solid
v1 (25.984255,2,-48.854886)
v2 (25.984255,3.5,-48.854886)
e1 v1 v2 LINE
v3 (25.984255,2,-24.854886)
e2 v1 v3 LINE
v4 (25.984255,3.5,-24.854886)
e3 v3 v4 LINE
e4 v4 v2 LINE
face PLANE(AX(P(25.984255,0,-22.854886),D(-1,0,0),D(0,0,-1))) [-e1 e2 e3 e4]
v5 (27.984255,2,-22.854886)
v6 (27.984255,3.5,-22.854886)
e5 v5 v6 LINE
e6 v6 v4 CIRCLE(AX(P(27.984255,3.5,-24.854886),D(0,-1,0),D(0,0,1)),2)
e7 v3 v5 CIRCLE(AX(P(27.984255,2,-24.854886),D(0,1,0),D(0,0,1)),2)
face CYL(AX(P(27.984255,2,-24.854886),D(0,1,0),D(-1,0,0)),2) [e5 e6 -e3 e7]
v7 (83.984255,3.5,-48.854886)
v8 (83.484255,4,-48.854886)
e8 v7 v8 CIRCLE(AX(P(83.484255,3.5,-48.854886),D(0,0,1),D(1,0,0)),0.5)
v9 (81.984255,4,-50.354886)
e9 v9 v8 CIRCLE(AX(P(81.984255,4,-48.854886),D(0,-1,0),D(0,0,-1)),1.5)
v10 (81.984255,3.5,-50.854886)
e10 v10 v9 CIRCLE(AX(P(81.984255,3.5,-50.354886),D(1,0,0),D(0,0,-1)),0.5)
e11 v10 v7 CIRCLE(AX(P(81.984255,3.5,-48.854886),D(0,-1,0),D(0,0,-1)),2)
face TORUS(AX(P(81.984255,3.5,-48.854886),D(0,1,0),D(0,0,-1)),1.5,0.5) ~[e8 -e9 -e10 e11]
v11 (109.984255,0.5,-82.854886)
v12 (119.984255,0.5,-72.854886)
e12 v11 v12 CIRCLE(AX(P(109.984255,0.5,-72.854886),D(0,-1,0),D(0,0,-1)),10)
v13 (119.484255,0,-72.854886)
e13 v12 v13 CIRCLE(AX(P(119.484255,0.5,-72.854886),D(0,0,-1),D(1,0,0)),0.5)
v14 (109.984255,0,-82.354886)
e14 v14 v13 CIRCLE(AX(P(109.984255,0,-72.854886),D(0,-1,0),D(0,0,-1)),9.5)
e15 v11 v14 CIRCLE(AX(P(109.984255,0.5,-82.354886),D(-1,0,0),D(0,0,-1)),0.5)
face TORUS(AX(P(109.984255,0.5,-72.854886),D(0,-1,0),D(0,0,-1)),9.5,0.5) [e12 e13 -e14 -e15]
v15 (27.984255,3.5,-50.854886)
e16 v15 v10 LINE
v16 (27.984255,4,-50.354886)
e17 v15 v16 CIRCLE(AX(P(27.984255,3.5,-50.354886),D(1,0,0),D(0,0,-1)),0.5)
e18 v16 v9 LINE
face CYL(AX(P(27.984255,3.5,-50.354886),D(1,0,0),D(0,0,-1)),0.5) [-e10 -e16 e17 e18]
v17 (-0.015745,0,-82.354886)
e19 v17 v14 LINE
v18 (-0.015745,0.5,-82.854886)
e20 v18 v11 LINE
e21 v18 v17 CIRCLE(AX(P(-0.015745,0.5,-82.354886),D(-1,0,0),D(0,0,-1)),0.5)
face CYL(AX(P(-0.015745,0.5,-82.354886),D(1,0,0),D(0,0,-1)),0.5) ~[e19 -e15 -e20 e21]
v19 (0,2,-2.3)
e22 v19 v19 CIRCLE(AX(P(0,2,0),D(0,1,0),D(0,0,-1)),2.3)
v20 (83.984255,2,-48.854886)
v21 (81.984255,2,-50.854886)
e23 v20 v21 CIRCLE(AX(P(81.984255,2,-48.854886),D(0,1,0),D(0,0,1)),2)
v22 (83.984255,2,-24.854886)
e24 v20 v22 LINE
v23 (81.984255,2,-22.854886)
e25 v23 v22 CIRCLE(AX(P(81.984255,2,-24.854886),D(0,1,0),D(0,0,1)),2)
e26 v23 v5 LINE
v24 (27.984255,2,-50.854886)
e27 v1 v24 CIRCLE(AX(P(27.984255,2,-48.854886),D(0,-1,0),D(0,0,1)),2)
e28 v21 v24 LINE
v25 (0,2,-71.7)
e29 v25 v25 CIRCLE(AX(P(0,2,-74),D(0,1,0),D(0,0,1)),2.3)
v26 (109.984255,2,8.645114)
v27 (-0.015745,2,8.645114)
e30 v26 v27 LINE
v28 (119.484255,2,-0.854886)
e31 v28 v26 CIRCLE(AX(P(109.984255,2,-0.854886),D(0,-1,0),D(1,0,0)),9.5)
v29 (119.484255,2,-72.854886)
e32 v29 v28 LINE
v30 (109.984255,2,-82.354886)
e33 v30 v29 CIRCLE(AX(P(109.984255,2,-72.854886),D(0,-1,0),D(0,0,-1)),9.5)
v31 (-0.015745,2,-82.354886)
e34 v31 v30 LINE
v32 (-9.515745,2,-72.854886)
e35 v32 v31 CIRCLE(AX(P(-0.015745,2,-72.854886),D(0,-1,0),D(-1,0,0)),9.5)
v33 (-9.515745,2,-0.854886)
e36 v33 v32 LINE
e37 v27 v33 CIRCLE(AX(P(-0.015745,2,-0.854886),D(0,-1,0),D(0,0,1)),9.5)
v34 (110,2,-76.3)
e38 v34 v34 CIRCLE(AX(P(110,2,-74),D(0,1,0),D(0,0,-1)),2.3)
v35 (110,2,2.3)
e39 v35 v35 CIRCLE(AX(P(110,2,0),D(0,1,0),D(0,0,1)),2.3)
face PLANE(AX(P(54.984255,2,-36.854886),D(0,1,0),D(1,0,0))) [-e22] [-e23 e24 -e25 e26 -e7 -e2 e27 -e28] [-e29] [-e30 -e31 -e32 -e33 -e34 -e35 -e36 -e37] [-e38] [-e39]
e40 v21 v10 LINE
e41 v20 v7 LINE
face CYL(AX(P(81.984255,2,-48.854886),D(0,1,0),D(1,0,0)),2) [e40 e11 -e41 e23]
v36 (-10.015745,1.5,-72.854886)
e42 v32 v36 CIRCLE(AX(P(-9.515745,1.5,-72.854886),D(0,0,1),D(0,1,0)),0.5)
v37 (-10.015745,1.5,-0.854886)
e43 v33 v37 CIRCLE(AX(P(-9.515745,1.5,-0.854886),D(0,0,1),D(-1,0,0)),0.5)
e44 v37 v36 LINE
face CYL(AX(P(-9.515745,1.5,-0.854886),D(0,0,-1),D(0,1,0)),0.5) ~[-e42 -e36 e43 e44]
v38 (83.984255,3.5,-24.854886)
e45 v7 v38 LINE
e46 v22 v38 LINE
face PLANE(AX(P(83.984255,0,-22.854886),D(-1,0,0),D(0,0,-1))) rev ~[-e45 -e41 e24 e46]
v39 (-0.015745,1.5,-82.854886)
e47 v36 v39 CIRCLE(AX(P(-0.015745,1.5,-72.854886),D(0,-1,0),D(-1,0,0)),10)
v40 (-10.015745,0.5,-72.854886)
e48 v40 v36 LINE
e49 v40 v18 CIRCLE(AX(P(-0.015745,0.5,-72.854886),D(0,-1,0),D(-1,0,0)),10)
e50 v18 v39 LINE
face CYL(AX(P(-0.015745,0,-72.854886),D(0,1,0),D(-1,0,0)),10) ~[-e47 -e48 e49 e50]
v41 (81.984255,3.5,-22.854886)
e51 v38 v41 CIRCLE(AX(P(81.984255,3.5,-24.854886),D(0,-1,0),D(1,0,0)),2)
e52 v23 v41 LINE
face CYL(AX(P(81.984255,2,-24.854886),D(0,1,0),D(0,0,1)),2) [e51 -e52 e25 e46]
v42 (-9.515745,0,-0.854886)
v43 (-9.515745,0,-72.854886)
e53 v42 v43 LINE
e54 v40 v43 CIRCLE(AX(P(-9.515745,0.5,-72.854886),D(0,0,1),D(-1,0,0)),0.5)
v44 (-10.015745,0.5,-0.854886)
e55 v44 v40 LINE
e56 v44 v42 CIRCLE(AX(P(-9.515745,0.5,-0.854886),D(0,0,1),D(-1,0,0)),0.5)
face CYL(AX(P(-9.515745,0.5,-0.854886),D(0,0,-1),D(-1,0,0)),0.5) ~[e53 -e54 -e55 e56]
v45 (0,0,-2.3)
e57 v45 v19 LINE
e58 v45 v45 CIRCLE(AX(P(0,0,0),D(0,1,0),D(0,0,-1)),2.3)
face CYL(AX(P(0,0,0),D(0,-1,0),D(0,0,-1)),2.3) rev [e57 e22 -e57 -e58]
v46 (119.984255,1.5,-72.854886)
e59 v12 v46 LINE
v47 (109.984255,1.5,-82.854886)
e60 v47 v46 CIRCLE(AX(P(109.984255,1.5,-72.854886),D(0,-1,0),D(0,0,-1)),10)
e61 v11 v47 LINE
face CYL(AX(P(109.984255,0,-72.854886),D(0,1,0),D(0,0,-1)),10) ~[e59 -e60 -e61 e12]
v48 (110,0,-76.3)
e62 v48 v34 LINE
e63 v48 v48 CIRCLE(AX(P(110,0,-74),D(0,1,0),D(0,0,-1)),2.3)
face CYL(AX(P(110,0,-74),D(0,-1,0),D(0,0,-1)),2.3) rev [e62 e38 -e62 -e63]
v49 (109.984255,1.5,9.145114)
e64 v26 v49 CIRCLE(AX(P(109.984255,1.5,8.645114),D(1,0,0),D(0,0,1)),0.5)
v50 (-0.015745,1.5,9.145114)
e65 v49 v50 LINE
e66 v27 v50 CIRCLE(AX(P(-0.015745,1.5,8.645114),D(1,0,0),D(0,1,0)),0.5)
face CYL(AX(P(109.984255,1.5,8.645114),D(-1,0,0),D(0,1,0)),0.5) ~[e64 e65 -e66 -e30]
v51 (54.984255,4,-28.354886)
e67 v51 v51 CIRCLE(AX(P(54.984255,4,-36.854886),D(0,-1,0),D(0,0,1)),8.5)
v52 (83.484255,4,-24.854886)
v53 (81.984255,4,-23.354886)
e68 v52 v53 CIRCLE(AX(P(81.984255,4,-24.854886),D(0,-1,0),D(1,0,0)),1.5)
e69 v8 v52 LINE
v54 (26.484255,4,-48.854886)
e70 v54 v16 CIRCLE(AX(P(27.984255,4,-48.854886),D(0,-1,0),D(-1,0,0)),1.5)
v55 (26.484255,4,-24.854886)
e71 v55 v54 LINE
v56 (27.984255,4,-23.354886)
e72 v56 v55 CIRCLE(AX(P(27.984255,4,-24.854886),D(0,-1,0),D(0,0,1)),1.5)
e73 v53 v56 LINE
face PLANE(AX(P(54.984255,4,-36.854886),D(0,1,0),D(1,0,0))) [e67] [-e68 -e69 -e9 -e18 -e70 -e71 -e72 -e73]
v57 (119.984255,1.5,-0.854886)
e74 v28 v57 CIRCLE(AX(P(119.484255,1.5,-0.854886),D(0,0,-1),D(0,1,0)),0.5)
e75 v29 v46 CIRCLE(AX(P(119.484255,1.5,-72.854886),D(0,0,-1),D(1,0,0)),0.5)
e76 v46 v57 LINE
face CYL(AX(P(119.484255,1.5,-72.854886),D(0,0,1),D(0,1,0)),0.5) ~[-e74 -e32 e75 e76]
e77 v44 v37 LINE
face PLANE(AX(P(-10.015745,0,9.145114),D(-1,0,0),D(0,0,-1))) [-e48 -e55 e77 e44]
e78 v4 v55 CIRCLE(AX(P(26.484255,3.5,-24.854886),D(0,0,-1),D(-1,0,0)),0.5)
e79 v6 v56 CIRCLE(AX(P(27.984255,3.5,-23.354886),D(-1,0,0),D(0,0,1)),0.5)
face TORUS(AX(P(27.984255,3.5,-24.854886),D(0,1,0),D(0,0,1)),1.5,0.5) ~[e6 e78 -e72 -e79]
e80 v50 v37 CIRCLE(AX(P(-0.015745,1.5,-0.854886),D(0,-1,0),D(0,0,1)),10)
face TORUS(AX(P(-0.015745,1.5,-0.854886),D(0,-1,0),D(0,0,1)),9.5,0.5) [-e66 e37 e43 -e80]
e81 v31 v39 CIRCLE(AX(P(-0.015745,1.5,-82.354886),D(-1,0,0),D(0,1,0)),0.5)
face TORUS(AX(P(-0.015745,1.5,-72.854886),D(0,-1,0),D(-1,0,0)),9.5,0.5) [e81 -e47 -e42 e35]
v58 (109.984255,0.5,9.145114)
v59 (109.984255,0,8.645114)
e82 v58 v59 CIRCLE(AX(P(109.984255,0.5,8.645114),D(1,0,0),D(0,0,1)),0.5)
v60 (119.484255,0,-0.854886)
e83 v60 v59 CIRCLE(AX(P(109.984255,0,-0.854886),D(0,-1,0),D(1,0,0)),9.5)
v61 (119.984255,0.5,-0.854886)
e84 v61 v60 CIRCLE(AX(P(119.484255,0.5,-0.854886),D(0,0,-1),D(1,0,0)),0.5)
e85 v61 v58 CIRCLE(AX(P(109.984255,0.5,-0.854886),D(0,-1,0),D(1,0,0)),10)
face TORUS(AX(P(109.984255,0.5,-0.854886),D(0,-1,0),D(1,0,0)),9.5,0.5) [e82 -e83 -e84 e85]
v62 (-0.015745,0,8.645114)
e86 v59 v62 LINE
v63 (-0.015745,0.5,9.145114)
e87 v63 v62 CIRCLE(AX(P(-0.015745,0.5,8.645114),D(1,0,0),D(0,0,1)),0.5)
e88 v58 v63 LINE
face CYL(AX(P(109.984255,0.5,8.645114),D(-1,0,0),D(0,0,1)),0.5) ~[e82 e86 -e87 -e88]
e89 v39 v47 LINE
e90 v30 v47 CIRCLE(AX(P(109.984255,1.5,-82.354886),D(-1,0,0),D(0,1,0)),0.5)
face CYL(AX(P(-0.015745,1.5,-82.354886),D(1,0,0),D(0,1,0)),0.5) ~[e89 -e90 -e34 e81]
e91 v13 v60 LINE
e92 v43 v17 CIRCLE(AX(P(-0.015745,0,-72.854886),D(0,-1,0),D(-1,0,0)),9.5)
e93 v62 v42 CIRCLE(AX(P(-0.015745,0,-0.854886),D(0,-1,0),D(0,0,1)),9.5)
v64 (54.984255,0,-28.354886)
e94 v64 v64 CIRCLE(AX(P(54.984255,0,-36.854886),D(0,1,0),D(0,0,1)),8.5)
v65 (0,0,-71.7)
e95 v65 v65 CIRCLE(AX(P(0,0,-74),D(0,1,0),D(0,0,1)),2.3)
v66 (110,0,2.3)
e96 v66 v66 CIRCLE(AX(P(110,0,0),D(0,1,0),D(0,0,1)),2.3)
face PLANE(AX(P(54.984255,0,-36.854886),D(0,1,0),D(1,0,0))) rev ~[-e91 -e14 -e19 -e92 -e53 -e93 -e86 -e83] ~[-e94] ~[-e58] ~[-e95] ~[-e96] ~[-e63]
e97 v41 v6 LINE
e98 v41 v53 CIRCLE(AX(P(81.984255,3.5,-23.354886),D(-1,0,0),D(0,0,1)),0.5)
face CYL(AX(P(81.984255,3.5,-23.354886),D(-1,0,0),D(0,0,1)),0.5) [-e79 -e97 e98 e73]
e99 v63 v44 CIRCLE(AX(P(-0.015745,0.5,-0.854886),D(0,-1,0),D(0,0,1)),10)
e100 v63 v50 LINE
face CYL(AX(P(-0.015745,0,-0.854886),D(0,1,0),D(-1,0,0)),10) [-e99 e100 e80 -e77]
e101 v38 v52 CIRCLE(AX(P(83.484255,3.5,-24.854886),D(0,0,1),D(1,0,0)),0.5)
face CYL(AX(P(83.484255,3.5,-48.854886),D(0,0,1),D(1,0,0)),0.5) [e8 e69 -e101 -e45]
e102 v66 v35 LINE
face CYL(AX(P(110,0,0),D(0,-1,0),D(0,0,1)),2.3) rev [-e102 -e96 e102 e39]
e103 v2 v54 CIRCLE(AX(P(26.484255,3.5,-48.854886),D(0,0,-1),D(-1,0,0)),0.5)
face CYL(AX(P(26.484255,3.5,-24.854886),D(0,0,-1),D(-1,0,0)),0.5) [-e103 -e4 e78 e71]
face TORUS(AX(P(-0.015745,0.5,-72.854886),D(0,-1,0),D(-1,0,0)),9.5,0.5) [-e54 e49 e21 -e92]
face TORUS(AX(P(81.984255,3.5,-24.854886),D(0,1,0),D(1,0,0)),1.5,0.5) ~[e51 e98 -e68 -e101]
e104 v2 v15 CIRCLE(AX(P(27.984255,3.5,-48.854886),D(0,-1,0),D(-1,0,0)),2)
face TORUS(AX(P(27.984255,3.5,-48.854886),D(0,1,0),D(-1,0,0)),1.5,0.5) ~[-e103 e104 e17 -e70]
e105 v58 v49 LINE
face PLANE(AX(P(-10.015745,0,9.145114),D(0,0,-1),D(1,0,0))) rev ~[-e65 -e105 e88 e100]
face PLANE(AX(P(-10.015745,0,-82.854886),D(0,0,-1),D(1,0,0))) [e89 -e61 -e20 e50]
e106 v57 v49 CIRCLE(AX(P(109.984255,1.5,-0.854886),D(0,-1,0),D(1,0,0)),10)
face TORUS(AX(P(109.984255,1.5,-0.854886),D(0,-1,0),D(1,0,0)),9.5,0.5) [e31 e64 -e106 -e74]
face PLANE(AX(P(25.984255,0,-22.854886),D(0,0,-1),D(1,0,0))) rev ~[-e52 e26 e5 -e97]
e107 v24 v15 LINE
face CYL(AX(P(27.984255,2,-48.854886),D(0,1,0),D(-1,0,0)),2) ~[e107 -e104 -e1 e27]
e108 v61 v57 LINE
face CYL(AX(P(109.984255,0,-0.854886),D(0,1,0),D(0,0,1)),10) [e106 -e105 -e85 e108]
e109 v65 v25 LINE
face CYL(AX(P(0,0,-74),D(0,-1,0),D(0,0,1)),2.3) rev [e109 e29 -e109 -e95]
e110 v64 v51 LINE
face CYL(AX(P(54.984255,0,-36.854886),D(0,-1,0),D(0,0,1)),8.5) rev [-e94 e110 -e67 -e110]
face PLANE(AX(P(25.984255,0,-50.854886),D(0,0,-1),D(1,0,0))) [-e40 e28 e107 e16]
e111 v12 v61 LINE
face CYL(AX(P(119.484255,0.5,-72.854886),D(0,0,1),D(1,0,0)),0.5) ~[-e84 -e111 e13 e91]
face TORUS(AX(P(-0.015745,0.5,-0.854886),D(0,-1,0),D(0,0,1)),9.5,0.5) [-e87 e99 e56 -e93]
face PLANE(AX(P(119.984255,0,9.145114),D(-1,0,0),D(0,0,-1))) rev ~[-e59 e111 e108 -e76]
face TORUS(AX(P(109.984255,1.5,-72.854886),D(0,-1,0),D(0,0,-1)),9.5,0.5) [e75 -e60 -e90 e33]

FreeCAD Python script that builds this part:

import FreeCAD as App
import Part
import Sketcher
from FreeCAD import Vector
Q = App.Units.Quantity


def edges_at(feature, points):
    """Names of the edges that pass closest to the given points."""
    edges = feature.Shape.Edges
    near = lambda p: min(range(len(edges)), key=lambda i: edges[i].distToShape(Part.Vertex(*p))[0])
    return sorted({f"Edge{near(p) + 1}" for p in points})

doc = App.newDocument("Part")
body = doc.addObject("PartDesign::Body", "Body")

# Sketch on XZ plane
sketch1 = body.newObject("Sketcher::SketchObject", "Sketch")
sketch1.AttachmentSupport = (doc.getObject("XZ_Plane"), [""])
sketch1.MapMode = "FlatFace"
sketch1.addGeometry(Part.LineSegment(Vector(-10.015745, -82.854886, 0), Vector(-10.015745, 9.145114, 0)), False)
sketch1.addGeometry(Part.LineSegment(Vector(-10.015745, 9.145114, 0), Vector(119.984255, 9.145114, 0)), False)
sketch1.addGeometry(Part.LineSegment(Vector(119.984255, 9.145114, 0), Vector(119.984255, -82.854886, 0)), False)
sketch1.addGeometry(Part.LineSegment(Vector(119.984255, -82.854886, 0), Vector(-10.015745, -82.854886, 0)), False)
sketch1.addGeometry(Part.Circle(Vector(0, 0, 0), Vector(0, 0, 1), 2.3), False)
sketch1.addGeometry(Part.Circle(Vector(110, 0, 0), Vector(0, 0, 1), 2.3), False)
sketch1.addGeometry(Part.Circle(Vector(0, -74, 0), Vector(0, 0, 1), 2.3), False)
sketch1.addGeometry(Part.Circle(Vector(110, -74, 0), Vector(0, 0, 1), 2.3), False)
sketch1.addConstraint(Sketcher.Constraint("Coincident", 0, 2, 1, 1))
sketch1.addConstraint(Sketcher.Constraint("Coincident", 1, 2, 2, 1))
sketch1.addConstraint(Sketcher.Constraint("Coincident", 2, 2, 3, 1))
sketch1.addConstraint(Sketcher.Constraint("Coincident", 3, 2, 0, 1))
sketch1.addConstraint(Sketcher.Constraint("Vertical", 0))
sketch1.addConstraint(Sketcher.Constraint("Horizontal", 1))
sketch1.addConstraint(Sketcher.Constraint("Vertical", 2))
sketch1.addConstraint(Sketcher.Constraint("Horizontal", 3))
sketch1.addConstraint(Sketcher.Constraint("Coincident", 4, 3, -1, 1))
sketch1.addConstraint(Sketcher.Constraint("Equal", 4, 5))
sketch1.addConstraint(Sketcher.Constraint("Equal", 5, 6))
sketch1.addConstraint(Sketcher.Constraint("Equal", 6, 7))
sketch1.addConstraint(Sketcher.Constraint("PointOnObject", 5, 3, -1))
sketch1.addConstraint(Sketcher.Constraint("PointOnObject", 6, 3, -2))
sketch1.addConstraint(Sketcher.Constraint("Horizontal", 6, 3, 7, 3))
sketch1.addConstraint(Sketcher.Constraint("Vertical", 5, 3, 7, 3))
sketch1.addConstraint(Sketcher.Constraint("Diameter", 4, Q("4.6 mm")))
sketch1.addConstraint(Sketcher.Constraint("DistanceX", 1, 1, 1, 2, Q("130 mm")))
sketch1.addConstraint(Sketcher.Constraint("DistanceY", 0, 1, 0, 2, Q("92 mm")))
sketch1.addConstraint(Sketcher.Constraint("DistanceX", -1, 1, 5, 3, Q("110 mm")))
sketch1.addConstraint(Sketcher.Constraint("DistanceY", 6, 3, -1, 1, Q("74 mm")))
sketch1.addConstraint(Sketcher.Constraint("DistanceX", 0, 2, -1, 1, Q("10.015745 mm")))
sketch1.addConstraint(Sketcher.Constraint("DistanceY", -1, 1, 0, 2, Q("9.145114 mm")))
pad1 = body.newObject("PartDesign::Pad", "Pad")
pad1.Profile = sketch1
pad1.Length = 2
pad1.Reversed = True

# Sketch on XZ plane
sketch2 = body.newObject("Sketcher::SketchObject", "Sketch001")
sketch2.AttachmentSupport = (doc.getObject("XZ_Plane"), [""])
sketch2.MapMode = "FlatFace"
sketch2.addGeometry(Part.LineSegment(Vector(25.984255, -50.854886, 0), Vector(25.984255, -22.854886, 0)), False)
sketch2.addGeometry(Part.LineSegment(Vector(25.984255, -22.854886, 0), Vector(83.984255, -22.854886, 0)), False)
sketch2.addGeometry(Part.LineSegment(Vector(83.984255, -22.854886, 0), Vector(83.984255, -50.854886, 0)), False)
sketch2.addGeometry(Part.LineSegment(Vector(83.984255, -50.854886, 0), Vector(25.984255, -50.854886, 0)), False)
sketch2.addConstraint(Sketcher.Constraint("Coincident", 0, 2, 1, 1))
sketch2.addConstraint(Sketcher.Constraint("Coincident", 1, 2, 2, 1))
sketch2.addConstraint(Sketcher.Constraint("Coincident", 2, 2, 3, 1))
sketch2.addConstraint(Sketcher.Constraint("Coincident", 3, 2, 0, 1))
sketch2.addConstraint(Sketcher.Constraint("Vertical", 0))
sketch2.addConstraint(Sketcher.Constraint("Horizontal", 1))
sketch2.addConstraint(Sketcher.Constraint("Vertical", 2))
sketch2.addConstraint(Sketcher.Constraint("Horizontal", 3))
sketch2.addConstraint(Sketcher.Constraint("DistanceX", 1, 1, 1, 2, Q("58 mm")))
sketch2.addConstraint(Sketcher.Constraint("DistanceY", 0, 1, 0, 2, Q("28 mm")))
sketch2.addConstraint(Sketcher.Constraint("DistanceX", -1, 1, 0, 2, Q("25.984255 mm")))
sketch2.addConstraint(Sketcher.Constraint("DistanceY", 0, 2, -1, 1, Q("22.854886 mm")))
pad2 = body.newObject("PartDesign::Pad", "Pad001")
pad2.Profile = sketch2
pad2.Length = 4
pad2.Reversed = True
doc.recompute()

fillet = body.newObject("PartDesign::Fillet", "Fillet")
fillet.Base = (pad2, edges_at(pad2, [
    (-10.016, 1, -82.855),
    (119.984, 1, -82.855),
    (119.984, 1, 9.145),
    (-10.016, 1, 9.145),
]))
fillet.Radius = 10
doc.recompute()

fillet2 = body.newObject("PartDesign::Fillet", "Fillet001")
fillet2.Base = (fillet, edges_at(fillet, [
    (25.984, 3, -50.855),
    (25.984, 3, -22.855),
    (83.984, 3, -22.855),
    (83.984, 3, -50.855),
]))
fillet2.Radius = 2
doc.recompute()

fillet3 = body.newObject("PartDesign::Fillet", "Fillet002")
fillet3.Base = (fillet2, edges_at(fillet2, [
    (54.984, 0, -82.855),
    (54.984, 2, -82.855),
    (-10.016, 0, -36.855),
    (119.984, 0, -36.855),
    (54.984, 0, 9.145),
    (-7.087, 0, -79.926),
    (-7.087, 0, 6.216),
    (117.055, 0, 6.216),
    (117.055, 0, -79.926),
    (119.984, 2, -36.855),
    (-10.016, 2, -36.855),
    (54.984, 2, 9.145),
    (-7.087, 2, -79.926),
    (-7.087, 2, 6.216),
    (117.055, 2, 6.216),
    (117.055, 2, -79.926),
    (25.984, 4, -36.855),
    (54.984, 4, -50.855),
    (54.984, 4, -22.855),
    (83.984, 4, -36.855),
    (26.57, 4, -23.441),
    (83.398, 4, -23.441),
    (83.398, 4, -50.269),
    (26.57, 4, -50.269),
]))
fillet3.Radius = 0.5

# Sketch on XZ plane
sketch3 = body.newObject("Sketcher::SketchObject", "Sketch002")
sketch3.AttachmentSupport = (doc.getObject("XZ_Plane"), [""])
sketch3.MapMode = "FlatFace"
sketch3.addGeometry(Part.Circle(Vector(54.984255, -36.854886, 0), Vector(0, 0, 1), 8.5), False)
sketch3.addConstraint(Sketcher.Constraint("Diameter", 0, Q("17 mm")))
sketch3.addConstraint(Sketcher.Constraint("DistanceX", -1, 1, 0, 3, Q("54.984255 mm")))
sketch3.addConstraint(Sketcher.Constraint("DistanceY", 0, 3, -1, 1, Q("36.854886 mm")))
pocket1 = body.newObject("PartDesign::Pocket", "Pocket")
pocket1.Profile = sketch3
pocket1.Type = "ThroughAll"

doc.recompute()
